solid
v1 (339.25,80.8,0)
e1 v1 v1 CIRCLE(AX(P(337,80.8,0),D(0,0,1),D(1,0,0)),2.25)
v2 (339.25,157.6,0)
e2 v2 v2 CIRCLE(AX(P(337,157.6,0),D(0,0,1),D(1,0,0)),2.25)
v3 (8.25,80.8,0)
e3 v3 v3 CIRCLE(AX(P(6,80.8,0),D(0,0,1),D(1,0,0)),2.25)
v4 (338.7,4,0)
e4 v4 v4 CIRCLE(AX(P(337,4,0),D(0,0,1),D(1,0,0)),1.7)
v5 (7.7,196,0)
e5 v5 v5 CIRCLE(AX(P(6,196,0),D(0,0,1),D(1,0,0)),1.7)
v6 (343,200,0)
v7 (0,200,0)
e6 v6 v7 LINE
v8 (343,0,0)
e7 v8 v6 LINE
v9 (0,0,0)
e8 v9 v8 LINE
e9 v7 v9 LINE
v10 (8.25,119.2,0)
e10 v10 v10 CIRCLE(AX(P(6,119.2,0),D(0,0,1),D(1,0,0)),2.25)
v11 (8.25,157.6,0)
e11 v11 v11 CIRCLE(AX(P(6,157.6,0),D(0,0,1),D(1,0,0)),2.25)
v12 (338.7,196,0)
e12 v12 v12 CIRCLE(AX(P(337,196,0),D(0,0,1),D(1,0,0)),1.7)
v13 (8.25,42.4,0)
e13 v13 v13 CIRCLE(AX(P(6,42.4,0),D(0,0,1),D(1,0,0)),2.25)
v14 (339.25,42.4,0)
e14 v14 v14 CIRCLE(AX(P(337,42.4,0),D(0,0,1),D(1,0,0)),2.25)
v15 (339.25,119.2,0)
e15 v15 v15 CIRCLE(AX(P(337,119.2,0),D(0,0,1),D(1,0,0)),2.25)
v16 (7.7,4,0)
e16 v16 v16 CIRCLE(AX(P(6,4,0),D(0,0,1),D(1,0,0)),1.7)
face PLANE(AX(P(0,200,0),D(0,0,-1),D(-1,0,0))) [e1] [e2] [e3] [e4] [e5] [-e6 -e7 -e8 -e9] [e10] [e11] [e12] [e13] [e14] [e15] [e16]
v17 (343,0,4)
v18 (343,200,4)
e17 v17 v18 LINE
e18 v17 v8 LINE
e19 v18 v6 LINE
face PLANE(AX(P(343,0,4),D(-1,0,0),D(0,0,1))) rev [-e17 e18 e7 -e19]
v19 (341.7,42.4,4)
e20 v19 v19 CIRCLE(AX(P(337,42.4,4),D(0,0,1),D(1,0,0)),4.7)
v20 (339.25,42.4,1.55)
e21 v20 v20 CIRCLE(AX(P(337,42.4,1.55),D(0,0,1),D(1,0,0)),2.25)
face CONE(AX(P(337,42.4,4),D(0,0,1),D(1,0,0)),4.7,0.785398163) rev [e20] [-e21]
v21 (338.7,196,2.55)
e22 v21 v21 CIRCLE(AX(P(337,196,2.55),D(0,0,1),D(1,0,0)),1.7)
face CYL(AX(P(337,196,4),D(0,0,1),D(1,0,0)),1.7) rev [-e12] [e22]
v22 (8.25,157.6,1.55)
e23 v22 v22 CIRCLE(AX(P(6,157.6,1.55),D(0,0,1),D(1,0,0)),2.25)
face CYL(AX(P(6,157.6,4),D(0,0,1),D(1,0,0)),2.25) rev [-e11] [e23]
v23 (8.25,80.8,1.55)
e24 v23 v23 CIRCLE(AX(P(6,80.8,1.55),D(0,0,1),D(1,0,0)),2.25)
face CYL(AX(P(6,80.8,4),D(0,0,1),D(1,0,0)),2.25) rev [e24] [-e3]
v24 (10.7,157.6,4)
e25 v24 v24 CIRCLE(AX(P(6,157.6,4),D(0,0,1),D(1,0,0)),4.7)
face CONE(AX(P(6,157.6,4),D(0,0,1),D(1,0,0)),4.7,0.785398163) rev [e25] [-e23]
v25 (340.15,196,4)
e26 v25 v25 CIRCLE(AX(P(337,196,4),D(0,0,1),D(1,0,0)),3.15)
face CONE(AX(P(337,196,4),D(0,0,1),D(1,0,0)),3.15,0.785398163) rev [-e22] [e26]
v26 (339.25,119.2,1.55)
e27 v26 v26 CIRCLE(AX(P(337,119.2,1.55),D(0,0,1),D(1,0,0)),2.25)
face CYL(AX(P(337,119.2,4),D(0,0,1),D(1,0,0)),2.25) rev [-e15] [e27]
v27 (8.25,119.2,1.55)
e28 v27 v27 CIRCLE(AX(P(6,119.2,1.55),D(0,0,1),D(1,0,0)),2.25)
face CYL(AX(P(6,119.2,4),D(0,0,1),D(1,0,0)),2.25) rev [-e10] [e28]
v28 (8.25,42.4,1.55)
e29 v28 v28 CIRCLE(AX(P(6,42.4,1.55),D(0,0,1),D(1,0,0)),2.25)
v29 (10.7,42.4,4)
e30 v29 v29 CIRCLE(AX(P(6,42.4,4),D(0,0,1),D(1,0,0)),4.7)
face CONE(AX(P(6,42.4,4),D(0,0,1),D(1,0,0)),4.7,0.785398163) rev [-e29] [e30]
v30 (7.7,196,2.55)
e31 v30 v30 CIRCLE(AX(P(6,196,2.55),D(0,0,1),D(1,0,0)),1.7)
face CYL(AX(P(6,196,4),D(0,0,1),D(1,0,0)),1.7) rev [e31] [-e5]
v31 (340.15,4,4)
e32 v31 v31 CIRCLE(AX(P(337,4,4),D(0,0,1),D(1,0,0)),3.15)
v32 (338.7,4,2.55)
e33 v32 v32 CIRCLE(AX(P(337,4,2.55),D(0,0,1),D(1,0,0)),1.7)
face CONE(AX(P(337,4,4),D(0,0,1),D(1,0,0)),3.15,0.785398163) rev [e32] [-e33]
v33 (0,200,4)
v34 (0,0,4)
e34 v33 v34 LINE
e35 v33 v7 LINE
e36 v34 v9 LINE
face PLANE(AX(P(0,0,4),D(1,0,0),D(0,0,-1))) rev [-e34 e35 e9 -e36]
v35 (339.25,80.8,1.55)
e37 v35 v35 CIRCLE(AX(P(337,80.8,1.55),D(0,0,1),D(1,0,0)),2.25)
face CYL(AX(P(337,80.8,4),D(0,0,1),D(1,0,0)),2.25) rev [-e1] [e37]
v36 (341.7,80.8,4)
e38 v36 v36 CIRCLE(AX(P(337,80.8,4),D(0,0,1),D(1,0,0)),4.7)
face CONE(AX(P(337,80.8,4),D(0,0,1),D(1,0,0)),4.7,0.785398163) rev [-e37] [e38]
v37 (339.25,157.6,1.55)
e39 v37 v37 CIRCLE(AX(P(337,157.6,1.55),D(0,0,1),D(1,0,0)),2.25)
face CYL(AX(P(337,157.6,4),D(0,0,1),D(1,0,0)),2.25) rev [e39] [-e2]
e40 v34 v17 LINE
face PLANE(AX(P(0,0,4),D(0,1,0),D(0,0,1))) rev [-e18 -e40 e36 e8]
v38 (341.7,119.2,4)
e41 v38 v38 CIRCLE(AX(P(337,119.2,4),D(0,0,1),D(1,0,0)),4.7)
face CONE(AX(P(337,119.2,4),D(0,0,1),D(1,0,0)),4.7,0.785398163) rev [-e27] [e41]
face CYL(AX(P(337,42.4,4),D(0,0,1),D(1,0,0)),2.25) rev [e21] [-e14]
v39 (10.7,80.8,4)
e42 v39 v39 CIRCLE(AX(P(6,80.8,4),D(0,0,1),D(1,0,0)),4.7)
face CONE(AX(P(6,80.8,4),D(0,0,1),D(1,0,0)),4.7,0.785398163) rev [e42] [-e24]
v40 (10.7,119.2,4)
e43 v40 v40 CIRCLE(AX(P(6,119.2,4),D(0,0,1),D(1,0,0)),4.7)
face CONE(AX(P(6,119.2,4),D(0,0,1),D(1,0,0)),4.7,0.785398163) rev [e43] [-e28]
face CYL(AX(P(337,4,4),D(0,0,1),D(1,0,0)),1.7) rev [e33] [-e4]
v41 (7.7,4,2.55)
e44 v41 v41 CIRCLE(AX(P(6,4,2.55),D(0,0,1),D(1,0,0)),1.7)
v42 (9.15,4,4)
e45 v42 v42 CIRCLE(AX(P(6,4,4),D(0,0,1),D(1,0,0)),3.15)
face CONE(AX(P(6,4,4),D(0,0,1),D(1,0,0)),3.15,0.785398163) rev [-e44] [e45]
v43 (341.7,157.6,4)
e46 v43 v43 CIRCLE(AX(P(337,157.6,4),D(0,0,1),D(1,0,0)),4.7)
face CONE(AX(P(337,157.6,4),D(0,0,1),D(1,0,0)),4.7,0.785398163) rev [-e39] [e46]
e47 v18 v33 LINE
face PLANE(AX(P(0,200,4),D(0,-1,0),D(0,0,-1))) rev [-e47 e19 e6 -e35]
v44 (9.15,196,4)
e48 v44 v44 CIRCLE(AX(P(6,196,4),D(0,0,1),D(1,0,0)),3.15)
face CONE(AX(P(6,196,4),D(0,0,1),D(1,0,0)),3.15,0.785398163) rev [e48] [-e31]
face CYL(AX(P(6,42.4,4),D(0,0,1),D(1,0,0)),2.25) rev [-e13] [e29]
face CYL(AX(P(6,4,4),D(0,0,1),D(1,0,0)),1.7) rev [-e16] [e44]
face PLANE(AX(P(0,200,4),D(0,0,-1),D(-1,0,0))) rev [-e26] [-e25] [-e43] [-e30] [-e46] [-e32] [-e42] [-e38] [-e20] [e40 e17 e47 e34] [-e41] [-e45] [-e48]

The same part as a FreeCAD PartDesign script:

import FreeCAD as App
import Part
import Sketcher
Q = App.Units.Quantity

doc = App.newDocument("Part")
body = doc.addObject("PartDesign::Body", "Body")

# Sketch on XY plane
sketch1 = body.newObject("Sketcher::SketchObject", "Sketch")
sketch1.AttachmentSupport = (doc.getObject("XY_Plane"), [""])
sketch1.MapMode = "FlatFace"
sketch1.addGeometry([
    Part.LineSegment(App.Vector(0, 200, 0), App.Vector(0, 0, 0)),
    Part.LineSegment(App.Vector(0, 0, 0), App.Vector(343, 0, 0)),
    Part.LineSegment(App.Vector(343, 0, 0), App.Vector(343, 200, 0)),
    Part.LineSegment(App.Vector(343, 200, 0), App.Vector(0, 200, 0)),
], False)
sketch1.addConstraint([
    Sketcher.Constraint("Coincident", 0, 2, 1, 1),
    Sketcher.Constraint("Coincident", 1, 2, 2, 1),
    Sketcher.Constraint("Coincident", 2, 2, 3, 1),
    Sketcher.Constraint("Coincident", 3, 2, 0, 1),
    Sketcher.Constraint("Vertical", 0),
    Sketcher.Constraint("Horizontal", 1),
    Sketcher.Constraint("Vertical", 2),
    Sketcher.Constraint("Horizontal", 3),
    Sketcher.Constraint("Coincident", 0, 2, -1, 1),
    Sketcher.Constraint("DistanceX", 1, 1, 1, 2, Q("343 mm")),
    Sketcher.Constraint("DistanceY", 0, 2, 0, 1, Q("200 mm")),
])
pad1 = body.newObject("PartDesign::Pad", "Pad")
pad1.Profile = sketch1
pad1.Length = 4

# Sketch on XY plane
sketch2 = body.newObject("Sketcher::SketchObject", "Sketch001")
sketch2.AttachmentSupport = (doc.getObject("XY_Plane"), [""])
sketch2.MapMode = "FlatFace"
sketch2.AttachmentOffset = App.Placement(App.Vector(0, 0, 4), App.Rotation())
sketch2.addGeometry([
    Part.Circle(App.Vector(6, 196, 0), App.Vector(0, 0, 1), 1.7),
    Part.Circle(App.Vector(6, 4, 0), App.Vector(0, 0, 1), 1.7),
    Part.Circle(App.Vector(337, 4, 0), App.Vector(0, 0, 1), 1.7),
    Part.Circle(App.Vector(337, 196, 0), App.Vector(0, 0, 1), 1.7),
], False)
sketch2.addConstraint([
    Sketcher.Constraint("Equal", 0, 1),
    Sketcher.Constraint("Equal", 1, 2),
    Sketcher.Constraint("Equal", 2, 3),
    Sketcher.Constraint("Horizontal", 1, 3, 2, 3),
    Sketcher.Constraint("Horizontal", 0, 3, 3, 3),
    Sketcher.Constraint("Vertical", 0, 3, 1, 3),
    Sketcher.Constraint("Vertical", 2, 3, 3, 3),
    Sketcher.Constraint("Diameter", 0, Q("3.4 mm")),
    Sketcher.Constraint("DistanceX", -1, 1, 0, 3, Q("6 mm")),
    Sketcher.Constraint("DistanceY", -1, 1, 0, 3, Q("196 mm")),
    Sketcher.Constraint("DistanceY", -1, 1, 1, 3, Q("4 mm")),
    Sketcher.Constraint("DistanceX", -1, 1, 2, 3, Q("337 mm")),
])
doc.recompute()
hole = body.newObject("PartDesign::Hole", "Hole")
hole.Profile = sketch2
hole.ThreadType = "None"
hole.Diameter = 3.4
hole.DepthType = "ThroughAll"
hole.HoleCutType = "Countersink"
hole.HoleCutDiameter = 6.3
hole.HoleCutCountersinkAngle = 90

# Sketch on YZ plane
sketch3 = body.newObject("Sketcher::SketchObject", "Sketch002")
sketch3.AttachmentSupport = (doc.getObject("YZ_Plane"), [""])
sketch3.MapMode = "FlatFace"
sketch3.AttachmentOffset = App.Placement(App.Vector(0, 0, 6), App.Rotation())
sketch3.addGeometry([
    Part.LineSegment(App.Vector(42.4, 0, 0), App.Vector(42.4, 4, 0)),  # 0
    Part.LineSegment(App.Vector(42.4, 4, 0), App.Vector(37.7, 4, 0)),  # 1
    Part.LineSegment(App.Vector(37.7, 4, 0), App.Vector(40.1, 1.6, 0)),  # 2
    Part.LineSegment(App.Vector(40.1, 1.6, 0), App.Vector(40.1, 0, 0)),  # 3
    Part.LineSegment(App.Vector(40.1, 0, 0), App.Vector(42.4, 0, 0)),  # 4
], False)
sketch3.addGeometry(Part.LineSegment(App.Vector(42.4, 4, 0), App.Vector(42.4, 0, 0)), True)  # axis
sketch3.addConstraint([
    Sketcher.Constraint("Coincident", 0, 2, 1, 1),
    Sketcher.Constraint("Coincident", 1, 2, 2, 1),
    Sketcher.Constraint("Coincident", 2, 2, 3, 1),
    Sketcher.Constraint("Coincident", 3, 2, 4, 1),
    Sketcher.Constraint("Coincident", 4, 2, 0, 1),
    Sketcher.Constraint("Vertical", 0),
    Sketcher.Constraint("Horizontal", 1),
    Sketcher.Constraint("Vertical", 3),
    Sketcher.Constraint("Horizontal", 4),
    Sketcher.Constraint("Vertical", 5),
    Sketcher.Constraint("Coincident", 5, 1, 0, 2),
    Sketcher.Constraint("PointOnObject", 3, 2, -1),
    Sketcher.Constraint("PointOnObject", 5, 2, -1),
    Sketcher.Constraint("DistanceY", 0, 1, 0, 2, Q("4 mm")),
    Sketcher.Constraint("Angle", 2, Q("-45 deg")),
    Sketcher.Constraint("DistanceX", 1, 2, 1, 1, Q("4.7 mm")),
    Sketcher.Constraint("DistanceX", 4, 1, 4, 2, Q("2.25 mm")),
    Sketcher.Constraint("DistanceX", -1, 1, 0, 2, Q("42.4 mm")),
])
groove = body.newObject("PartDesign::Groove", "Groove")
groove.Profile = sketch3
groove.ReferenceAxis = (sketch3, ["Axis0"])
groove.Angle = 360
doc.recompute()

linearpattern = body.newObject("PartDesign::LinearPattern", "LinearPattern")
linearpattern.Originals = [groove]
linearpattern.Direction = (doc.getObject("X_Axis"), [""])
linearpattern.Mode = "offset"
linearpattern.Offset = 331
linearpattern.Occurrences = 2
body.Tip = linearpattern
doc.recompute()

linearpattern2 = body.newObject("PartDesign::LinearPattern", "LinearPattern001")
linearpattern2.Originals = [groove]
linearpattern2.Direction = (doc.getObject("Y_Axis"), [""])
linearpattern2.Mode = "offset"
linearpattern2.Offset = 38.4
linearpattern2.Occurrences = 4
body.Tip = linearpattern2

# Sketch on YZ plane
sketch4 = body.newObject("Sketcher::SketchObject", "Sketch003")
sketch4.AttachmentSupport = (doc.getObject("YZ_Plane"), [""])
sketch4.MapMode = "FlatFace"
sketch4.AttachmentOffset = App.Placement(App.Vector(0, 0, 337), App.Rotation())
sketch4.addGeometry([
    Part.LineSegment(App.Vector(80.8, 0, 0), App.Vector(80.8, 4, 0)),  # 0
    Part.LineSegment(App.Vector(80.8, 4, 0), App.Vector(76.1, 4, 0)),  # 1
    Part.LineSegment(App.Vector(76.1, 4, 0), App.Vector(78.5, 1.6, 0)),  # 2
    Part.LineSegment(App.Vector(78.5, 1.6, 0), App.Vector(78.5, 0, 0)),  # 3
    Part.LineSegment(App.Vector(78.5, 0, 0), App.Vector(80.8, 0, 0)),  # 4
], False)
sketch4.addGeometry(Part.LineSegment(App.Vector(80.8, 4, 0), App.Vector(80.8, 0, 0)), True)  # axis
sketch4.addConstraint([
    Sketcher.Constraint("Coincident", 0, 2, 1, 1),
    Sketcher.Constraint("Coincident", 1, 2, 2, 1),
    Sketcher.Constraint("Coincident", 2, 2, 3, 1),
    Sketcher.Constraint("Coincident", 3, 2, 4, 1),
    Sketcher.Constraint("Coincident", 4, 2, 0, 1),
    Sketcher.Constraint("Vertical", 0),
    Sketcher.Constraint("Horizontal", 1),
    Sketcher.Constraint("Vertical", 3),
    Sketcher.Constraint("Horizontal", 4),
    Sketcher.Constraint("Vertical", 5),
    Sketcher.Constraint("Coincident", 5, 1, 0, 2),
    Sketcher.Constraint("PointOnObject", 3, 2, -1),
    Sketcher.Constraint("PointOnObject", 5, 2, -1),
    Sketcher.Constraint("DistanceY", 0, 1, 0, 2, Q("4 mm")),
    Sketcher.Constraint("Angle", 2, Q("-45 deg")),
    Sketcher.Constraint("DistanceX", 1, 2, 1, 1, Q("4.7 mm")),
    Sketcher.Constraint("DistanceX", 4, 1, 4, 2, Q("2.25 mm")),
    Sketcher.Constraint("DistanceX", -1, 1, 0, 2, Q("80.8 mm")),
])
groove2 = body.newObject("PartDesign::Groove", "Groove001")
groove2.Profile = sketch4
groove2.ReferenceAxis = (sketch4, ["Axis0"])
groove2.Angle = 360

# Sketch on YZ plane
sketch5 = body.newObject("Sketcher::SketchObject", "Sketch004")
sketch5.AttachmentSupport = (doc.getObject("YZ_Plane"), [""])
sketch5.MapMode = "FlatFace"
sketch5.AttachmentOffset = App.Placement(App.Vector(0, 0, 337), App.Rotation())
sketch5.addGeometry([
    Part.LineSegment(App.Vector(119.2, 0, 0), App.Vector(119.2, 4, 0)),  # 0
    Part.LineSegment(App.Vector(119.2, 4, 0), App.Vector(114.5, 4, 0)),  # 1
    Part.LineSegment(App.Vector(114.5, 4, 0), App.Vector(117, 1.6, 0)),  # 2
    Part.LineSegment(App.Vector(117, 1.6, 0), App.Vector(117, 0, 0)),  # 3
    Part.LineSegment(App.Vector(117, 0, 0), App.Vector(119.2, 0, 0)),  # 4
], False)
sketch5.addGeometry(Part.LineSegment(App.Vector(119.2, 4, 0), App.Vector(119.2, 0, 0)), True)  # axis
sketch5.addConstraint([
    Sketcher.Constraint("Coincident", 0, 2, 1, 1),
    Sketcher.Constraint("Coincident", 1, 2, 2, 1),
    Sketcher.Constraint("Coincident", 2, 2, 3, 1),
    Sketcher.Constraint("Coincident", 3, 2, 4, 1),
    Sketcher.Constraint("Coincident", 4, 2, 0, 1),
    Sketcher.Constraint("Vertical", 0),
    Sketcher.Constraint("Horizontal", 1),
    Sketcher.Constraint("Vertical", 3),
    Sketcher.Constraint("Horizontal", 4),
    Sketcher.Constraint("Vertical", 5),
    Sketcher.Constraint("Coincident", 5, 1, 0, 2),
    Sketcher.Constraint("PointOnObject", 3, 2, -1),
    Sketcher.Constraint("PointOnObject", 5, 2, -1),
    Sketcher.Constraint("DistanceY", 0, 1, 0, 2, Q("4 mm")),
    Sketcher.Constraint("Angle", 2, Q("-45 deg")),
    Sketcher.Constraint("DistanceX", 1, 2, 1, 1, Q("4.7 mm")),
    Sketcher.Constraint("DistanceX", 4, 1, 4, 2, Q("2.25 mm")),
    Sketcher.Constraint("DistanceX", -1, 1, 0, 2, Q("119.2 mm")),
])
groove3 = body.newObject("PartDesign::Groove", "Groove002")
groove3.Profile = sketch5
groove3.ReferenceAxis = (sketch5, ["Axis0"])
groove3.Angle = 360

# Sketch on YZ plane
sketch6 = body.newObject("Sketcher::SketchObject", "Sketch005")
sketch6.AttachmentSupport = (doc.getObject("YZ_Plane"), [""])
sketch6.MapMode = "FlatFace"
sketch6.AttachmentOffset = App.Placement(App.Vector(0, 0, 337), App.Rotation())
sketch6.addGeometry([
    Part.LineSegment(App.Vector(157.6, 0, 0), App.Vector(157.6, 4, 0)),  # 0
    Part.LineSegment(App.Vector(157.6, 4, 0), App.Vector(152.9, 4, 0)),  # 1
    Part.LineSegment(App.Vector(152.9, 4, 0), App.Vector(155.3, 1.6, 0)),  # 2
    Part.LineSegment(App.Vector(155.3, 1.6, 0), App.Vector(155.3, 0, 0)),  # 3
    Part.LineSegment(App.Vector(155.3, 0, 0), App.Vector(157.6, 0, 0)),  # 4
], False)
sketch6.addGeometry(Part.LineSegment(App.Vector(157.6, 4, 0), App.Vector(157.6, 0, 0)), True)  # axis
sketch6.addConstraint([
    Sketcher.Constraint("Coincident", 0, 2, 1, 1),
    Sketcher.Constraint("Coincident", 1, 2, 2, 1),
    Sketcher.Constraint("Coincident", 2, 2, 3, 1),
    Sketcher.Constraint("Coincident", 3, 2, 4, 1),
    Sketcher.Constraint("Coincident", 4, 2, 0, 1),
    Sketcher.Constraint("Vertical", 0),
    Sketcher.Constraint("Horizontal", 1),
    Sketcher.Constraint("Vertical", 3),
    Sketcher.Constraint("Horizontal", 4),
    Sketcher.Constraint("Vertical", 5),
    Sketcher.Constraint("Coincident", 5, 1, 0, 2),
    Sketcher.Constraint("PointOnObject", 3, 2, -1),
    Sketcher.Constraint("PointOnObject", 5, 2, -1),
    Sketcher.Constraint("DistanceY", 0, 1, 0, 2, Q("4 mm")),
    Sketcher.Constraint("Angle", 2, Q("-45 deg")),
    Sketcher.Constraint("DistanceX", 1, 2, 1, 1, Q("4.7 mm")),
    Sketcher.Constraint("DistanceX", 4, 1, 4, 2, Q("2.25 mm")),
    Sketcher.Constraint("DistanceX", -1, 1, 0, 2, Q("157.6 mm")),
])
groove4 = body.newObject("PartDesign::Groove", "Groove003")
groove4.Profile = sketch6
groove4.ReferenceAxis = (sketch6, ["Axis0"])
groove4.Angle = 360

doc.recompute()
